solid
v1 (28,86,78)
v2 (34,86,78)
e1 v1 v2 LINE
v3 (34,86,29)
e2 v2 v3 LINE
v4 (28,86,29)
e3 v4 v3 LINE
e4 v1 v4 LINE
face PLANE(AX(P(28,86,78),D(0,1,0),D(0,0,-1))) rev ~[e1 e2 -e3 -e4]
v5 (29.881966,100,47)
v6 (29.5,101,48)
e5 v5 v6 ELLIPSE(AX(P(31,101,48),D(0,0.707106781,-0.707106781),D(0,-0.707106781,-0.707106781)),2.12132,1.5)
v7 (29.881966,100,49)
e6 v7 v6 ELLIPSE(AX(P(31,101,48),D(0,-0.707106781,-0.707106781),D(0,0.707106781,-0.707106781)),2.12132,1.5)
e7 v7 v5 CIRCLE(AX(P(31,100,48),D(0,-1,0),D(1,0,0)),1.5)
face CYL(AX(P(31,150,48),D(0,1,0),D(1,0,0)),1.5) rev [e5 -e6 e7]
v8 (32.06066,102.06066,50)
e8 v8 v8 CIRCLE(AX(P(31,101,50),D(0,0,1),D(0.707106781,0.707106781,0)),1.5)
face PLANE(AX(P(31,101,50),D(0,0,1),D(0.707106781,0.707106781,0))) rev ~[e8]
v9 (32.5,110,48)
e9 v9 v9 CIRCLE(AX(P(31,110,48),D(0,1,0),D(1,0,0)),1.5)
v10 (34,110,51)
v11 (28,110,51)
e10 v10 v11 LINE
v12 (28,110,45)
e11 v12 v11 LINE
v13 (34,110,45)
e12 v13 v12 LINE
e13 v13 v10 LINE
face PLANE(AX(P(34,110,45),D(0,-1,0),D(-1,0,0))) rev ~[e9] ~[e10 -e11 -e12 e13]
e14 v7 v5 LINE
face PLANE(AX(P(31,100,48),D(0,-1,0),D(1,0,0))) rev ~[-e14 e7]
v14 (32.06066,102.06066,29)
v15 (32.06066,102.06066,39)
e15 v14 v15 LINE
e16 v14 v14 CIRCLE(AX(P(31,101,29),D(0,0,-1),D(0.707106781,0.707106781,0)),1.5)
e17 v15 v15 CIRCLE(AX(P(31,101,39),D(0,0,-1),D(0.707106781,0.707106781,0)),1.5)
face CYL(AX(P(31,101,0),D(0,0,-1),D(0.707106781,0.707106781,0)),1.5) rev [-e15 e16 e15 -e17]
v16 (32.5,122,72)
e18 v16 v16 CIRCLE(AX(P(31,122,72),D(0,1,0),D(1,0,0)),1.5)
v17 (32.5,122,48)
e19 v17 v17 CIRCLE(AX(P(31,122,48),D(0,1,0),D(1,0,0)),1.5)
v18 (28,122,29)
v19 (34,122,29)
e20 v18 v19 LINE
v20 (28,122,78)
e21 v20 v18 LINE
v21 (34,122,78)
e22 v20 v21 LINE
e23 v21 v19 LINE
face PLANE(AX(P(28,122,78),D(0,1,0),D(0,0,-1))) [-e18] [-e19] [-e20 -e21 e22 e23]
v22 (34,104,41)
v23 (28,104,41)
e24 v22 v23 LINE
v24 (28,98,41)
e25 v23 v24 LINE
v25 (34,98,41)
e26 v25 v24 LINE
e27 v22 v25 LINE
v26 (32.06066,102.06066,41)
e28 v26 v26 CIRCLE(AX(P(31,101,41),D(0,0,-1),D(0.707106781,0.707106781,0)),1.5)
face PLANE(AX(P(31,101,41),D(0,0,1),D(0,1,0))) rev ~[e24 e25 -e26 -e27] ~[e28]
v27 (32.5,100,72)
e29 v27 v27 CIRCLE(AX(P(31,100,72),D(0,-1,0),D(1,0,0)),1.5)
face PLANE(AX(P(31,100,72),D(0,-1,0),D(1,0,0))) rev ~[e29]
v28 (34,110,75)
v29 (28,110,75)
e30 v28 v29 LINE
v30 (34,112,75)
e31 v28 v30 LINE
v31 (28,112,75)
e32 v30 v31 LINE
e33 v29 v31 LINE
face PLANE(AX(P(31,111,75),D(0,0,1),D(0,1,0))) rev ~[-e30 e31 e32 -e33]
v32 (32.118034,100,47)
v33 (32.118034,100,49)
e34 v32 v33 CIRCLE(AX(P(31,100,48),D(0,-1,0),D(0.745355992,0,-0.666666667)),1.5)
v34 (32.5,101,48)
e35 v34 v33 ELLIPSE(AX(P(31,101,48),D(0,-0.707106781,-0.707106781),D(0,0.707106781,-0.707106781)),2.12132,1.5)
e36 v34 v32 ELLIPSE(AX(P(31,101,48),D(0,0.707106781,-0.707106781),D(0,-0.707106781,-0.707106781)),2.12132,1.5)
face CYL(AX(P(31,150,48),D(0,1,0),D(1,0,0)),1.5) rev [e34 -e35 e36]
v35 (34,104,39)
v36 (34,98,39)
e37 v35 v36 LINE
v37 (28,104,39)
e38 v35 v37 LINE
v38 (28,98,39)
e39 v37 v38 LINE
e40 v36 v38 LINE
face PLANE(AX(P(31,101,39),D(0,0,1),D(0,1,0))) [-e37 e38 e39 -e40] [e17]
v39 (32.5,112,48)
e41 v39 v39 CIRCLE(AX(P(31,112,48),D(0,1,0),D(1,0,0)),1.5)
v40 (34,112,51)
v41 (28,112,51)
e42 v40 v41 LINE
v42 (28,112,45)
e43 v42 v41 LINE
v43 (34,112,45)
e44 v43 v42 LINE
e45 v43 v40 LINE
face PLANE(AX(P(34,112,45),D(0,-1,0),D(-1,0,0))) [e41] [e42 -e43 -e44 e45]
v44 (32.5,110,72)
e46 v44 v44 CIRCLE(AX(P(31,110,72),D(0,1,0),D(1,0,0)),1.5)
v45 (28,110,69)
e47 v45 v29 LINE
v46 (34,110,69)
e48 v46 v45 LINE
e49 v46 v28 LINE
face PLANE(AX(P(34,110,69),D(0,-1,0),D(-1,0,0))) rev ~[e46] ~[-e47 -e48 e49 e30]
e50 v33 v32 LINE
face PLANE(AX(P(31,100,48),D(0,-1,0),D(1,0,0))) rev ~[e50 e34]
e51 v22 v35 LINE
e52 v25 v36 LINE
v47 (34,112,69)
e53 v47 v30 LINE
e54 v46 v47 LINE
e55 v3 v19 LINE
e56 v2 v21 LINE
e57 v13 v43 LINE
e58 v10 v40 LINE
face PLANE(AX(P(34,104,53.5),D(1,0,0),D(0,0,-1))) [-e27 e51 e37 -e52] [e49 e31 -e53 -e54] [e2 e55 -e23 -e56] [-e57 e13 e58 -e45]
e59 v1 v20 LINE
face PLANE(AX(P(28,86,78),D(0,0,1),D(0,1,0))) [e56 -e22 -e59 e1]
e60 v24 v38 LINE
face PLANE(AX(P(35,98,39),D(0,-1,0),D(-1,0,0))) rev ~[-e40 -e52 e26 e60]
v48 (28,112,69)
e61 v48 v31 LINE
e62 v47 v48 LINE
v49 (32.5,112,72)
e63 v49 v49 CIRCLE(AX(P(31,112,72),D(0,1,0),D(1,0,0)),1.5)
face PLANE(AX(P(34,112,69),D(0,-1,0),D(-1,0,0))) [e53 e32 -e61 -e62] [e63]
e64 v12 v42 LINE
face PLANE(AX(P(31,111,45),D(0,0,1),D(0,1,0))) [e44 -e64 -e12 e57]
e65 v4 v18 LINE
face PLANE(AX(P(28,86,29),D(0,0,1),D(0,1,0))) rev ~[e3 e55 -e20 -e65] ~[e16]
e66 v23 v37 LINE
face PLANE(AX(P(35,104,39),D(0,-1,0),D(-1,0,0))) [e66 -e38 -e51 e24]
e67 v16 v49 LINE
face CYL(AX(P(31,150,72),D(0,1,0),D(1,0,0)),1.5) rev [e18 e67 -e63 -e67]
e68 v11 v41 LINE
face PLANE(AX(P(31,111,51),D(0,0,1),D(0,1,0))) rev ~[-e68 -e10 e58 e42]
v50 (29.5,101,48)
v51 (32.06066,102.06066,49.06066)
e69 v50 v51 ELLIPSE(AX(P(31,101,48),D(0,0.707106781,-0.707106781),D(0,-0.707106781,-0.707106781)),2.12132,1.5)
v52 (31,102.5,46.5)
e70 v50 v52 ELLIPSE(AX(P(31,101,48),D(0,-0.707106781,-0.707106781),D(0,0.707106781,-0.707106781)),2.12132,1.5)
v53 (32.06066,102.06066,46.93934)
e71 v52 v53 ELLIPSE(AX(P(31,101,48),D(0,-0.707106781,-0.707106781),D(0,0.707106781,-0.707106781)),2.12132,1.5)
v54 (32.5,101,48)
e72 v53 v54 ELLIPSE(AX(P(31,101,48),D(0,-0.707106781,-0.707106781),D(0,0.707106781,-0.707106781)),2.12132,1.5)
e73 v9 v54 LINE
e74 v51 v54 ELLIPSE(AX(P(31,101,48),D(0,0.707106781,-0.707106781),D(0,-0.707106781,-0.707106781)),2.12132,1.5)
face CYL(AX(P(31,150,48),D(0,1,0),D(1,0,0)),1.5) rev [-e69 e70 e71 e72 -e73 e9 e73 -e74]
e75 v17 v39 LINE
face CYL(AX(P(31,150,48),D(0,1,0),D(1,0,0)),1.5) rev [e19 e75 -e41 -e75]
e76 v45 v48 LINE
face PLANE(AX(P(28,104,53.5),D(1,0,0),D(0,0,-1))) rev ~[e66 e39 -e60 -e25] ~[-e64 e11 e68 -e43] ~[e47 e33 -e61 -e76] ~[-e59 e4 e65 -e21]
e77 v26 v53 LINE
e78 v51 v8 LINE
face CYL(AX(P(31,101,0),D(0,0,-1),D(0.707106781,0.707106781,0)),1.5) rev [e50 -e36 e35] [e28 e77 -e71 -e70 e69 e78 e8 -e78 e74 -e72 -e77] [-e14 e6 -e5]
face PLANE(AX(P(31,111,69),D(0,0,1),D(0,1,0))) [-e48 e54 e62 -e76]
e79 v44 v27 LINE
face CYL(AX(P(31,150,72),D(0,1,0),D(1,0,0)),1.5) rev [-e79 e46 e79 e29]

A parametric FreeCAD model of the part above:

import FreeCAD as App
import Part
import Sketcher
from FreeCAD import Vector
Q = App.Units.Quantity

doc = App.newDocument("Part")
params = doc.addObject("Spreadsheet::Sheet", "Params")
for row, (alias, value) in enumerate([
    ("sketch1_diameter", "3 mm"),
    ("pad1_length", "50 mm"),
    ("sketch2_diameter", "3 mm"),
    ("pad2_length", "50 mm"),
    ("sketch3_diameter", "3 mm"),
    ("pad3_length", "50 mm"),
    ("sketch4_diameter", "3 mm"),
    ("pad4_length", "50 mm"),
    ("sketch5_width", "6 mm"),
    ("sketch5_height", "2 mm"),
    ("pad5_length", "6 mm"),
    ("sketch6_width", "6 mm"),
    ("sketch6_height", "2 mm"),
    ("pad6_length", "6 mm"),
    ("sketch7_width", "6 mm"),
    ("sketch7_height", "2 mm"),
    ("pad7_length", "6 mm"),
    ("sketch8_width", "6 mm"),
    ("sketch8_height", "2 mm"),
    ("pad8_length", "6 mm"),
    ("sketch9_width", "8 mm"),
    ("sketch9_height", "6 mm"),
    ("pad9_length", "2 mm"),
    ("sketch10_diameter", "3 mm"),
    ("pad10_length", "50 mm"),
    ("sketch11_width", "36 mm"),
    ("sketch11_height", "49 mm"),
    ("pad11_length", "6 mm"),
], start=1):
    params.set(f"A{row}", alias)
    params.set(f"B{row}", "=" + value)
    params.setAlias(f"B{row}", alias)

body = doc.addObject("PartDesign::Body", "Body")

sketch1 = body.newObject("Sketcher::SketchObject", "Sketch")
sketch1.AttachmentSupport = (doc.getObject("XZ_Plane"), [""])
sketch1.MapMode = "FlatFace"
sketch1.AttachmentOffset = App.Placement(Vector(0, 0, -150), App.Rotation())
sketch1.addGeometry(Part.Circle(Vector(-31, 72, 0), Vector(0, 0, 1), 1.5), False)
sketch1.addConstraint(Sketcher.Constraint("Diameter", 0, Q("3 mm")))
sketch1.addConstraint(Sketcher.Constraint("DistanceX", 0, 3, -1, 1, Q("31 mm")))
sketch1.addConstraint(Sketcher.Constraint("DistanceY", -1, 1, 0, 3, Q("72 mm")))
sketch1.setExpression("Constraints[0]", "Params.sketch1_diameter")
pad1 = body.newObject("PartDesign::Pad", "Pad")
pad1.Profile = sketch1
pad1.setExpression("Length", "Params.pad1_length")
body2 = doc.addObject("PartDesign::Body", "Body001")

sketch2 = body2.newObject("Sketcher::SketchObject", "Sketch001")
sketch2.AttachmentSupport = (doc.getObject("XZ_Plane001"), [""])
sketch2.MapMode = "FlatFace"
sketch2.AttachmentOffset = App.Placement(Vector(0, 0, -150), App.Rotation())
sketch2.addGeometry(Part.Circle(Vector(31, 48, 0), Vector(0, 0, 1), 1.5), False)
sketch2.addConstraint(Sketcher.Constraint("Diameter", 0, Q("3 mm")))
sketch2.addConstraint(Sketcher.Constraint("DistanceX", -1, 1, 0, 3, Q("31 mm")))
sketch2.addConstraint(Sketcher.Constraint("DistanceY", -1, 1, 0, 3, Q("48 mm")))
sketch2.setExpression("Constraints[0]", "Params.sketch2_diameter")
pad2 = body2.newObject("PartDesign::Pad", "Pad001")
pad2.Profile = sketch2
pad2.setExpression("Length", "Params.pad2_length")
body3 = doc.addObject("PartDesign::Body", "Body002")

sketch3 = body3.newObject("Sketcher::SketchObject", "Sketch002")
sketch3.AttachmentSupport = (doc.getObject("XZ_Plane002"), [""])
sketch3.MapMode = "FlatFace"
sketch3.AttachmentOffset = App.Placement(Vector(0, 0, -150), App.Rotation())
sketch3.addGeometry(Part.Circle(Vector(31, 72, 0), Vector(0, 0, 1), 1.5), False)
sketch3.addConstraint(Sketcher.Constraint("Diameter", 0, Q("3 mm")))
sketch3.addConstraint(Sketcher.Constraint("DistanceX", -1, 1, 0, 3, Q("31 mm")))
sketch3.addConstraint(Sketcher.Constraint("DistanceY", -1, 1, 0, 3, Q("72 mm")))
sketch3.setExpression("Constraints[0]", "Params.sketch3_diameter")
pad3 = body3.newObject("PartDesign::Pad", "Pad002")
pad3.Profile = sketch3
pad3.setExpression("Length", "Params.pad3_length")
body4 = doc.addObject("PartDesign::Body", "Body003")
body4.AllowCompound = True

sketch4 = body4.newObject("Sketcher::SketchObject", "Sketch003")
sketch4.AttachmentSupport = (doc.getObject("XZ_Plane003"), [""])
sketch4.MapMode = "FlatFace"
sketch4.AttachmentOffset = App.Placement(Vector(0, 0, -150), App.Rotation())
sketch4.addGeometry(Part.Circle(Vector(-31, 48, 0), Vector(0, 0, 1), 1.5), False)
sketch4.addConstraint(Sketcher.Constraint("Diameter", 0, Q("3 mm")))
sketch4.addConstraint(Sketcher.Constraint("DistanceX", 0, 3, -1, 1, Q("31 mm")))
sketch4.addConstraint(Sketcher.Constraint("DistanceY", -1, 1, 0, 3, Q("48 mm")))
sketch4.setExpression("Constraints[0]", "Params.sketch4_diameter")
pad4 = body4.newObject("PartDesign::Pad", "Pad003")
pad4.Profile = sketch4
pad4.setExpression("Length", "Params.pad4_length")
doc.recompute()

boolean = body4.newObject("PartDesign::Boolean", "Boolean")
boolean.Type = "Fuse"
boolean.addObjects([body])
doc.recompute()

boolean2 = body4.newObject("PartDesign::Boolean", "Boolean001")
boolean2.Type = "Fuse"
boolean2.addObjects([body2])
doc.recompute()

boolean3 = body4.newObject("PartDesign::Boolean", "Boolean002")
boolean3.Type = "Fuse"
boolean3.addObjects([body3])
body5 = doc.addObject("PartDesign::Body", "Body004")

sketch5 = body5.newObject("Sketcher::SketchObject", "Sketch004")
sketch5.AttachmentSupport = (doc.getObject("XY_Plane004"), [""])
sketch5.MapMode = "FlatFace"
sketch5.AttachmentOffset = App.Placement(Vector(0, 0, 69), App.Rotation())
sketch5.addGeometry(Part.LineSegment(Vector(-34, 110, 0), Vector(-28, 110, 0)), False)
sketch5.addGeometry(Part.LineSegment(Vector(-28, 110, 0), Vector(-28, 112, 0)), False)
sketch5.addGeometry(Part.LineSegment(Vector(-28, 112, 0), Vector(-34, 112, 0)), False)
sketch5.addGeometry(Part.LineSegment(Vector(-34, 112, 0), Vector(-34, 110, 0)), False)
sketch5.addConstraint(Sketcher.Constraint("Coincident", 0, 2, 1, 1))
sketch5.addConstraint(Sketcher.Constraint("Coincident", 1, 2, 2, 1))
sketch5.addConstraint(Sketcher.Constraint("Coincident", 2, 2, 3, 1))
sketch5.addConstraint(Sketcher.Constraint("Coincident", 3, 2, 0, 1))
sketch5.addConstraint(Sketcher.Constraint("Horizontal", 0))
sketch5.addConstraint(Sketcher.Constraint("Vertical", 1))
sketch5.addConstraint(Sketcher.Constraint("Horizontal", 2))
sketch5.addConstraint(Sketcher.Constraint("Vertical", 3))
sketch5.addConstraint(Sketcher.Constraint("DistanceX", 0, 1, 0, 2, Q("6 mm")))
sketch5.addConstraint(Sketcher.Constraint("DistanceY", 1, 1, 1, 2, Q("2 mm")))
sketch5.addConstraint(Sketcher.Constraint("DistanceX", 0, 2, -1, 1, Q("28 mm")))
sketch5.addConstraint(Sketcher.Constraint("DistanceY", -1, 1, 0, 2, Q("110 mm")))
sketch5.setExpression("Constraints[8]", "Params.sketch5_width")
sketch5.setExpression("Constraints[9]", "Params.sketch5_height")
pad5 = body5.newObject("PartDesign::Pad", "Pad004")
pad5.Profile = sketch5
pad5.setExpression("Length", "Params.pad5_length")
body6 = doc.addObject("PartDesign::Body", "Body005")

sketch6 = body6.newObject("Sketcher::SketchObject", "Sketch005")
sketch6.AttachmentSupport = (doc.getObject("XY_Plane005"), [""])
sketch6.MapMode = "FlatFace"
sketch6.AttachmentOffset = App.Placement(Vector(0, 0, 45), App.Rotation())
sketch6.addGeometry(Part.LineSegment(Vector(28, 110, 0), Vector(34, 110, 0)), False)
sketch6.addGeometry(Part.LineSegment(Vector(34, 110, 0), Vector(34, 112, 0)), False)
sketch6.addGeometry(Part.LineSegment(Vector(34, 112, 0), Vector(28, 112, 0)), False)
sketch6.addGeometry(Part.LineSegment(Vector(28, 112, 0), Vector(28, 110, 0)), False)
sketch6.addConstraint(Sketcher.Constraint("Coincident", 0, 2, 1, 1))
sketch6.addConstraint(Sketcher.Constraint("Coincident", 1, 2, 2, 1))
sketch6.addConstraint(Sketcher.Constraint("Coincident", 2, 2, 3, 1))
sketch6.addConstraint(Sketcher.Constraint("Coincident", 3, 2, 0, 1))
sketch6.addConstraint(Sketcher.Constraint("Horizontal", 0))
sketch6.addConstraint(Sketcher.Constraint("Vertical", 1))
sketch6.addConstraint(Sketcher.Constraint("Horizontal", 2))
sketch6.addConstraint(Sketcher.Constraint("Vertical", 3))
sketch6.addConstraint(Sketcher.Constraint("DistanceX", 0, 1, 0, 2, Q("6 mm")))
sketch6.addConstraint(Sketcher.Constraint("DistanceY", 1, 1, 1, 2, Q("2 mm")))
sketch6.addConstraint(Sketcher.Constraint("DistanceX", -1, 1, 0, 2, Q("34 mm")))
sketch6.addConstraint(Sketcher.Constraint("DistanceY", -1, 1, 0, 2, Q("110 mm")))
sketch6.setExpression("Constraints[8]", "Params.sketch6_width")
sketch6.setExpression("Constraints[9]", "Params.sketch6_height")
pad6 = body6.newObject("PartDesign::Pad", "Pad005")
pad6.Profile = sketch6
pad6.setExpression("Length", "Params.pad6_length")
body7 = doc.addObject("PartDesign::Body", "Body006")

sketch7 = body7.newObject("Sketcher::SketchObject", "Sketch006")
sketch7.AttachmentSupport = (doc.getObject("XY_Plane006"), [""])
sketch7.MapMode = "FlatFace"
sketch7.AttachmentOffset = App.Placement(Vector(0, 0, 69), App.Rotation())
sketch7.addGeometry(Part.LineSegment(Vector(28, 110, 0), Vector(34, 110, 0)), False)
sketch7.addGeometry(Part.LineSegment(Vector(34, 110, 0), Vector(34, 112, 0)), False)
sketch7.addGeometry(Part.LineSegment(Vector(34, 112, 0), Vector(28, 112, 0)), False)
sketch7.addGeometry(Part.LineSegment(Vector(28, 112, 0), Vector(28, 110, 0)), False)
sketch7.addConstraint(Sketcher.Constraint("Coincident", 0, 2, 1, 1))
sketch7.addConstraint(Sketcher.Constraint("Coincident", 1, 2, 2, 1))
sketch7.addConstraint(Sketcher.Constraint("Coincident", 2, 2, 3, 1))
sketch7.addConstraint(Sketcher.Constraint("Coincident", 3, 2, 0, 1))
sketch7.addConstraint(Sketcher.Constraint("Horizontal", 0))
sketch7.addConstraint(Sketcher.Constraint("Vertical", 1))
sketch7.addConstraint(Sketcher.Constraint("Horizontal", 2))
sketch7.addConstraint(Sketcher.Constraint("Vertical", 3))
sketch7.addConstraint(Sketcher.Constraint("DistanceX", 0, 1, 0, 2, Q("6 mm")))
sketch7.addConstraint(Sketcher.Constraint("DistanceY", 1, 1, 1, 2, Q("2 mm")))
sketch7.addConstraint(Sketcher.Constraint("DistanceX", -1, 1, 0, 2, Q("34 mm")))
sketch7.addConstraint(Sketcher.Constraint("DistanceY", -1, 1, 0, 2, Q("110 mm")))
sketch7.setExpression("Constraints[8]", "Params.sketch7_width")
sketch7.setExpression("Constraints[9]", "Params.sketch7_height")
pad7 = body7.newObject("PartDesign::Pad", "Pad006")
pad7.Profile = sketch7
pad7.setExpression("Length", "Params.pad7_length")
body8 = doc.addObject("PartDesign::Body", "Body007")
body8.AllowCompound = True

sketch8 = body8.newObject("Sketcher::SketchObject", "Sketch007")
sketch8.AttachmentSupport = (doc.getObject("XY_Plane007"), [""])
sketch8.MapMode = "FlatFace"
sketch8.AttachmentOffset = App.Placement(Vector(0, 0, 45), App.Rotation())
sketch8.addGeometry(Part.LineSegment(Vector(-34, 110, 0), Vector(-28, 110, 0)), False)
sketch8.addGeometry(Part.LineSegment(Vector(-28, 110, 0), Vector(-28, 112, 0)), False)
sketch8.addGeometry(Part.LineSegment(Vector(-28, 112, 0), Vector(-34, 112, 0)), False)
sketch8.addGeometry(Part.LineSegment(Vector(-34, 112, 0), Vector(-34, 110, 0)), False)
sketch8.addConstraint(Sketcher.Constraint("Coincident", 0, 2, 1, 1))
sketch8.addConstraint(Sketcher.Constraint("Coincident", 1, 2, 2, 1))
sketch8.addConstraint(Sketcher.Constraint("Coincident", 2, 2, 3, 1))
sketch8.addConstraint(Sketcher.Constraint("Coincident", 3, 2, 0, 1))
sketch8.addConstraint(Sketcher.Constraint("Horizontal", 0))
sketch8.addConstraint(Sketcher.Constraint("Vertical", 1))
sketch8.addConstraint(Sketcher.Constraint("Horizontal", 2))
sketch8.addConstraint(Sketcher.Constraint("Vertical", 3))
sketch8.addConstraint(Sketcher.Constraint("DistanceX", 0, 1, 0, 2, Q("6 mm")))
sketch8.addConstraint(Sketcher.Constraint("DistanceY", 1, 1, 1, 2, Q("2 mm")))
sketch8.addConstraint(Sketcher.Constraint("DistanceX", 0, 2, -1, 1, Q("28 mm")))
sketch8.addConstraint(Sketcher.Constraint("DistanceY", -1, 1, 0, 2, Q("110 mm")))
sketch8.setExpression("Constraints[8]", "Params.sketch8_width")
sketch8.setExpression("Constraints[9]", "Params.sketch8_height")
pad8 = body8.newObject("PartDesign::Pad", "Pad007")
pad8.Profile = sketch8
pad8.setExpression("Length", "Params.pad8_length")
doc.recompute()

boolean4 = body8.newObject("PartDesign::Boolean", "Boolean003")
boolean4.Type = "Fuse"
boolean4.addObjects([body5])
doc.recompute()

boolean5 = body8.newObject("PartDesign::Boolean", "Boolean004")
boolean5.Type = "Fuse"
boolean5.addObjects([body6])
doc.recompute()

boolean6 = body8.newObject("PartDesign::Boolean", "Boolean005")
boolean6.Type = "Fuse"
boolean6.addObjects([body7])
body9 = doc.addObject("PartDesign::Body", "Body008")

sketch9 = body9.newObject("Sketcher::SketchObject", "Sketch008")
sketch9.AttachmentSupport = (doc.getObject("XY_Plane008"), [""])
sketch9.MapMode = "FlatFace"
sketch9.AttachmentOffset = App.Placement(Vector(0, 0, 39), App.Rotation())
sketch9.addGeometry(Part.LineSegment(Vector(27, 98, 0), Vector(35, 98, 0)), False)
sketch9.addGeometry(Part.LineSegment(Vector(35, 98, 0), Vector(35, 104, 0)), False)
sketch9.addGeometry(Part.LineSegment(Vector(35, 104, 0), Vector(27, 104, 0)), False)
sketch9.addGeometry(Part.LineSegment(Vector(27, 104, 0), Vector(27, 98, 0)), False)
sketch9.addConstraint(Sketcher.Constraint("Coincident", 0, 2, 1, 1))
sketch9.addConstraint(Sketcher.Constraint("Coincident", 1, 2, 2, 1))
sketch9.addConstraint(Sketcher.Constraint("Coincident", 2, 2, 3, 1))
sketch9.addConstraint(Sketcher.Constraint("Coincident", 3, 2, 0, 1))
sketch9.addConstraint(Sketcher.Constraint("Horizontal", 0))
sketch9.addConstraint(Sketcher.Constraint("Vertical", 1))
sketch9.addConstraint(Sketcher.Constraint("Horizontal", 2))
sketch9.addConstraint(Sketcher.Constraint("Vertical", 3))
sketch9.addConstraint(Sketcher.Constraint("DistanceX", 0, 1, 0, 2, Q("8 mm")))
sketch9.addConstraint(Sketcher.Constraint("DistanceY", 1, 1, 1, 2, Q("6 mm")))
sketch9.addConstraint(Sketcher.Constraint("DistanceX", -1, 1, 0, 2, Q("35 mm")))
sketch9.addConstraint(Sketcher.Constraint("DistanceY", -1, 1, 0, 2, Q("98 mm")))
sketch9.setExpression("Constraints[8]", "Params.sketch9_width")
sketch9.setExpression("Constraints[9]", "Params.sketch9_height")
pad9 = body9.newObject("PartDesign::Pad", "Pad008")
pad9.Profile = sketch9
pad9.setExpression("Length", "Params.pad9_length")
body10 = doc.addObject("PartDesign::Body", "Body009")

sketch10 = body10.newObject("Sketcher::SketchObject", "Sketch009")
sketch10.AttachmentSupport = (doc.getObject("XY_Plane009"), [""])
sketch10.MapMode = "FlatFace"
sketch10.addGeometry(Part.Circle(Vector(0, 0, 0), Vector(0, 0, 1), 1.5), False)
sketch10.addConstraint(Sketcher.Constraint("Coincident", 0, 3, -1, 1))
sketch10.addConstraint(Sketcher.Constraint("Diameter", 0, Q("3 mm")))
sketch10.setExpression("Constraints[1]", "Params.sketch10_diameter")
pad10 = body10.newObject("PartDesign::Pad", "Pad009")
pad10.Profile = sketch10
pad10.setExpression("Length", "Params.pad10_length")
body11 = doc.addObject("PartDesign::Body", "Body010")
doc.recompute()

body10.Placement = App.Placement(Vector(31, 101, 0), App.Rotation(Vector(0, 0, 1), 45))
boolean7 = body11.newObject("PartDesign::Boolean", "Boolean006")
boolean7.Type = "Fuse"
boolean7.addObjects([body10])
body12 = doc.addObject("PartDesign::Body", "Body011")

sketch11 = body12.newObject("Sketcher::SketchObject", "Sketch010")
sketch11.AttachmentSupport = (doc.getObject("YZ_Plane011"), [""])
sketch11.MapMode = "FlatFace"
sketch11.AttachmentOffset = App.Placement(Vector(0, 0, 28), App.Rotation())
sketch11.addGeometry(Part.LineSegment(Vector(122, 78, 0), Vector(86, 78, 0)), False)
sketch11.addGeometry(Part.LineSegment(Vector(86, 78, 0), Vector(86, 29, 0)), False)
sketch11.addGeometry(Part.LineSegment(Vector(86, 29, 0), Vector(122, 29, 0)), False)
sketch11.addGeometry(Part.LineSegment(Vector(122, 29, 0), Vector(122, 78, 0)), False)
sketch11.addConstraint(Sketcher.Constraint("Coincident", 0, 2, 1, 1))
sketch11.addConstraint(Sketcher.Constraint("Coincident", 1, 2, 2, 1))
sketch11.addConstraint(Sketcher.Constraint("Coincident", 2, 2, 3, 1))
sketch11.addConstraint(Sketcher.Constraint("Coincident", 3, 2, 0, 1))
sketch11.addConstraint(Sketcher.Constraint("Horizontal", 0))
sketch11.addConstraint(Sketcher.Constraint("Vertical", 1))
sketch11.addConstraint(Sketcher.Constraint("Horizontal", 2))
sketch11.addConstraint(Sketcher.Constraint("Vertical", 3))
sketch11.addConstraint(Sketcher.Constraint("DistanceX", 0, 2, 0, 1, Q("36 mm")))
sketch11.addConstraint(Sketcher.Constraint("DistanceY", 1, 2, 1, 1, Q("49 mm")))
sketch11.addConstraint(Sketcher.Constraint("DistanceX", -1, 1, 0, 2, Q("86 mm")))
sketch11.addConstraint(Sketcher.Constraint("DistanceY", -1, 1, 0, 2, Q("78 mm")))
sketch11.setExpression("Constraints[8]", "Params.sketch11_width")
sketch11.setExpression("Constraints[9]", "Params.sketch11_height")
pad11 = body12.newObject("PartDesign::Pad", "Pad010")
pad11.Profile = sketch11
pad11.setExpression("Length", "Params.pad11_length")
doc.recompute()

boolean8 = body12.newObject("PartDesign::Boolean", "Boolean007")
boolean8.Type = "Cut"
boolean8.addObjects([body11])
doc.recompute()

boolean9 = body12.newObject("PartDesign::Boolean", "Boolean008")
boolean9.Type = "Cut"
boolean9.addObjects([body9])
doc.recompute()

boolean10 = body12.newObject("PartDesign::Boolean", "Boolean009")
boolean10.Type = "Cut"
boolean10.addObjects([body8])
doc.recompute()

boolean11 = body12.newObject("PartDesign::Boolean", "Boolean010")
boolean11.Type = "Cut"
boolean11.addObjects([body4])

doc.recompute()
